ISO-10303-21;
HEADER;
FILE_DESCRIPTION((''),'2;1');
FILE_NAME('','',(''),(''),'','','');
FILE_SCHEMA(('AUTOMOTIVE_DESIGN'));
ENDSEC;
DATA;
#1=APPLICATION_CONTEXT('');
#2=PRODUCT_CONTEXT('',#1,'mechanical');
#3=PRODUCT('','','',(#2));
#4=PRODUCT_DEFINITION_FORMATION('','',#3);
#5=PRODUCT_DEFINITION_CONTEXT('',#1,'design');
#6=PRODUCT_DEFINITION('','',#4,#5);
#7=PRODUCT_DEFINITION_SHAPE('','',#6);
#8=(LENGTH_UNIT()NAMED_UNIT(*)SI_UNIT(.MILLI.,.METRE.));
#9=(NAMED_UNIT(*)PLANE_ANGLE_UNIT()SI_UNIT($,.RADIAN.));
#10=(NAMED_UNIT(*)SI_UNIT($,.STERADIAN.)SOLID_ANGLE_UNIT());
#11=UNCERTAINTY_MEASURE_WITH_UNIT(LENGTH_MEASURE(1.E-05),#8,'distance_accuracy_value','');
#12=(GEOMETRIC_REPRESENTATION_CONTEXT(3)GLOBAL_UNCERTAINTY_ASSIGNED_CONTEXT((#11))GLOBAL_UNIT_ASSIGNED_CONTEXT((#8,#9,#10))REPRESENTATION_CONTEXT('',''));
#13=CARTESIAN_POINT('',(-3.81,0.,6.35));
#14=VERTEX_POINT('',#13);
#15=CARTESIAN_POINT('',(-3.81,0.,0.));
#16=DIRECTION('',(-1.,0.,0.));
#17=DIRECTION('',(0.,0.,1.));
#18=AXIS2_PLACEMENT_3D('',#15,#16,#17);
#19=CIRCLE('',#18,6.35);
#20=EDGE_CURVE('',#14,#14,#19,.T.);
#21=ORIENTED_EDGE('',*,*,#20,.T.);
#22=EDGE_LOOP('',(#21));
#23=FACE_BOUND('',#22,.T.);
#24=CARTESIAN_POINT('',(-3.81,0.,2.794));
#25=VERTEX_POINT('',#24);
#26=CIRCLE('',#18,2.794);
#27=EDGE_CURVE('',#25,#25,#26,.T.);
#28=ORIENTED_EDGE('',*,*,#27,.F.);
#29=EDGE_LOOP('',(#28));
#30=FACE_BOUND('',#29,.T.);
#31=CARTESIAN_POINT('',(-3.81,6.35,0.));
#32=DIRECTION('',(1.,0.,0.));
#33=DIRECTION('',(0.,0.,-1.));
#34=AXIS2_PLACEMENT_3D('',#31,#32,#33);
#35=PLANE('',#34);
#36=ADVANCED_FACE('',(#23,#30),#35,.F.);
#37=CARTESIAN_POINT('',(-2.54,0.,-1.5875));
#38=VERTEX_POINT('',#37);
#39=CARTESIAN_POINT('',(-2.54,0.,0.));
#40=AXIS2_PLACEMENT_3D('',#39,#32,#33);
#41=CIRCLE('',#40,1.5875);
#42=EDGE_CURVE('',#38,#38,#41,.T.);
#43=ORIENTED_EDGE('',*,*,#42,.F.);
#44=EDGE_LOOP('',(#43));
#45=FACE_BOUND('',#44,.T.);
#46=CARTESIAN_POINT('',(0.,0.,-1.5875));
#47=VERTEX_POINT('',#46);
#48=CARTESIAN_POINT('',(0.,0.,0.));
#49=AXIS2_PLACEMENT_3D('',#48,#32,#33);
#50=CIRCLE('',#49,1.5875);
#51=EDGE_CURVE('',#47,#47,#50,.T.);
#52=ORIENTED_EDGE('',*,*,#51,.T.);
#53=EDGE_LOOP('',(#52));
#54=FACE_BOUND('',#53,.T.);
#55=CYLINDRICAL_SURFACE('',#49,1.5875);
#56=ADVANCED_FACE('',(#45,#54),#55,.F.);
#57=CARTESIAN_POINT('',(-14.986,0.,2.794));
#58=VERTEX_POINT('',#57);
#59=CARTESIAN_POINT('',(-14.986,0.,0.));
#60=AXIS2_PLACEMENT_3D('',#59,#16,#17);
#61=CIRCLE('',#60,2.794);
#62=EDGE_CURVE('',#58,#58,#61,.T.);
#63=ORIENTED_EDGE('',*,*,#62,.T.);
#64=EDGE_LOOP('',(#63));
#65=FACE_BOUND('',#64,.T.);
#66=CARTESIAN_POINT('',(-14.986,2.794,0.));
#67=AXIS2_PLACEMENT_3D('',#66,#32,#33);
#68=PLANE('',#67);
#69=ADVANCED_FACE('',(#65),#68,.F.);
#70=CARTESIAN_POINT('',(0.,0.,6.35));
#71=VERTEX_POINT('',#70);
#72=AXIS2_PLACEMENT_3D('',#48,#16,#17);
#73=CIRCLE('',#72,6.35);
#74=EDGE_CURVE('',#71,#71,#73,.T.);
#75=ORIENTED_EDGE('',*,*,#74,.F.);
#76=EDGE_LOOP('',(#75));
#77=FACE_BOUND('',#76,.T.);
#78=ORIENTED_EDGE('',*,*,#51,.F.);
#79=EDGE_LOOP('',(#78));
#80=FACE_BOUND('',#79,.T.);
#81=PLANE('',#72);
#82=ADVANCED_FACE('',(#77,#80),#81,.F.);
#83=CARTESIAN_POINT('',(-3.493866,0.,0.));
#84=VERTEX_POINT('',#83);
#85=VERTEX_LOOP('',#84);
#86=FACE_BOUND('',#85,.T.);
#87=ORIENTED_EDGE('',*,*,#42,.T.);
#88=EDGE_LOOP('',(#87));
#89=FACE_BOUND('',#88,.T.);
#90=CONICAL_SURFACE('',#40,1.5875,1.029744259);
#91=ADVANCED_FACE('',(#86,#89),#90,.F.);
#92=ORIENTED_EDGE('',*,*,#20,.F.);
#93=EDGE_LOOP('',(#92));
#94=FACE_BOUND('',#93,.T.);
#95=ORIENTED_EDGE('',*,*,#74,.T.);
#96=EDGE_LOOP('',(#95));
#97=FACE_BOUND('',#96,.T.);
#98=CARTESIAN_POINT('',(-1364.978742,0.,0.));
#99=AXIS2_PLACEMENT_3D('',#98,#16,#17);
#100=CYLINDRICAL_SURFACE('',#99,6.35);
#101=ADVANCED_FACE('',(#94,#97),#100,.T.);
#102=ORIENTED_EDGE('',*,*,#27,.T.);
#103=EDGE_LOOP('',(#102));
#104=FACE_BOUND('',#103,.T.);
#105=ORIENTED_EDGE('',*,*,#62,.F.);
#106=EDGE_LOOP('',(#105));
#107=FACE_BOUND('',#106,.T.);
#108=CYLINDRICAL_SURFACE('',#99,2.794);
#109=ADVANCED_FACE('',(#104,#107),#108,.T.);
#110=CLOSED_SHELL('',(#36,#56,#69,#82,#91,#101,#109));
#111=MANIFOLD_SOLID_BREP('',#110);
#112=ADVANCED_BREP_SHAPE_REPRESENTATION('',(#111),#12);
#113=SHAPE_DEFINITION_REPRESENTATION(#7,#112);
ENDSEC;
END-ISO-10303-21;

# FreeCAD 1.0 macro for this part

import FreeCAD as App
import Part
import Sketcher

V = App.Vector
Q = App.Units.Quantity

doc = App.newDocument("Part")
params = doc.addObject("Spreadsheet::Sheet", "Params")
for row, (alias, value) in enumerate([
    ("sketch1_width", "0.15 in"),
    ("sketch1_width2", "0.44 in"),
    ("sketch1_height", "0.25 in"),
    ("sketch1_height2", "0.14 in"),
    ("revolution_angle", "360 deg"),
    ("sketch2_width", "0.1 in"),
    ("sketch2_height", "0.0625 in"),
    ("groove_angle", "360 deg"),
], start=1):
    params.set(f"A{row}", alias)
    params.set(f"B{row}", "=" + value)
    params.setAlias(f"B{row}", alias)

body = doc.addObject("PartDesign::Body", "Body")

# Sketch on XY plane
sketch1 = doc.addObject("Sketcher::SketchObject", "Sketch")
body.addObject(sketch1)
sketch1.AttachmentSupport = (doc.XY_Plane, [""])
sketch1.MapMode = "FlatFace"
sketch1.addGeometry([
    Part.LineSegment(V(0, 0, 0), V(0, 6.35, 0)),  # 0
    Part.LineSegment(V(0, 6.35, 0), V(-3.81, 6.35, 0)),  # 1
    Part.LineSegment(V(-3.81, 6.35, 0), V(-3.81, 2.794, 0)),  # 2
    Part.LineSegment(V(-3.81, 2.794, 0), V(-14.986, 2.794, 0)),  # 3
    Part.LineSegment(V(-14.986, 2.794, 0), V(-14.986, 0, 0)),  # 4
    Part.LineSegment(V(-14.986, 0, 0), V(0, 0, 0)),  # 5
], False)
sketch1.addConstraint([
    Sketcher.Constraint("Coincident", 0, 2, 1, 1),
    Sketcher.Constraint("Coincident", 1, 2, 2, 1),
    Sketcher.Constraint("Coincident", 2, 2, 3, 1),
    Sketcher.Constraint("Coincident", 3, 2, 4, 1),
    Sketcher.Constraint("Coincident", 4, 2, 5, 1),
    Sketcher.Constraint("Coincident", 5, 2, 0, 1),
    Sketcher.Constraint("Vertical", 0),
    Sketcher.Constraint("Horizontal", 1),
    Sketcher.Constraint("Vertical", 2),
    Sketcher.Constraint("Horizontal", 3),
    Sketcher.Constraint("Vertical", 4),
    Sketcher.Constraint("Horizontal", 5),
    Sketcher.Constraint("Coincident", 5, 2, -1, 1),
    Sketcher.Constraint("DistanceX", 1, 2, 1, 1, Q("0.15 in")),
    Sketcher.Constraint("DistanceX", 3, 2, 3, 1, Q("0.44 in")),
    Sketcher.Constraint("DistanceY", 0, 1, 0, 2, Q("0.25 in")),
    Sketcher.Constraint("DistanceY", 2, 2, 2, 1, Q("0.14 in")),
])
sketch1.setExpression("Constraints[13]", "Params.sketch1_width")
sketch1.setExpression("Constraints[14]", "Params.sketch1_width2")
sketch1.setExpression("Constraints[15]", "Params.sketch1_height")
sketch1.setExpression("Constraints[16]", "Params.sketch1_height2")
revolution = doc.addObject("PartDesign::Revolution", "Revolution")
body.addObject(revolution)
revolution.Profile = sketch1
revolution.ReferenceAxis = (sketch1, ["H_Axis"])
revolution.setExpression("Angle", "Params.revolution_angle")

# Sketch on XY plane
sketch2 = doc.addObject("Sketcher::SketchObject", "Sketch001")
body.addObject(sketch2)
sketch2.AttachmentSupport = (doc.XY_Plane, [""])
sketch2.MapMode = "FlatFace"
sketch2.addGeometry([
    Part.LineSegment(V(0, 0, 0), V(0, 1.5875, 0)),
    Part.LineSegment(V(0, 1.5875, 0), V(-2.54, 1.5875, 0)),
    Part.LineSegment(V(-2.54, 1.5875, 0), V(-3.493866, 0, 0)),
    Part.LineSegment(V(-3.493866, 0, 0), V(0, 0, 0)),
], False)
sketch2.addConstraint([
    Sketcher.Constraint("Coincident", 0, 2, 1, 1),
    Sketcher.Constraint("Coincident", 1, 2, 2, 1),
    Sketcher.Constraint("Coincident", 2, 2, 3, 1),
    Sketcher.Constraint("Coincident", 3, 2, 0, 1),
    Sketcher.Constraint("Vertical", 0),
    Sketcher.Constraint("Horizontal", 1),
    Sketcher.Constraint("Horizontal", 3),
    Sketcher.Constraint("Coincident", 3, 2, -1, 1),
    Sketcher.Constraint("DistanceX", 1, 2, 1, 1, Q("0.1 in")),
    Sketcher.Constraint("Angle", 2, Q("-121 deg")),
    Sketcher.Constraint("DistanceY", 0, 1, 0, 2, Q("0.0625 in")),
])
sketch2.setExpression("Constraints[8]", "Params.sketch2_width")
sketch2.setExpression("Constraints[10]", "Params.sketch2_height")
groove = doc.addObject("PartDesign::Groove", "Groove")
body.addObject(groove)
groove.Profile = sketch2
groove.ReferenceAxis = (sketch2, ["H_Axis"])
groove.setExpression("Angle", "Params.groove_angle")

doc.recompute()
